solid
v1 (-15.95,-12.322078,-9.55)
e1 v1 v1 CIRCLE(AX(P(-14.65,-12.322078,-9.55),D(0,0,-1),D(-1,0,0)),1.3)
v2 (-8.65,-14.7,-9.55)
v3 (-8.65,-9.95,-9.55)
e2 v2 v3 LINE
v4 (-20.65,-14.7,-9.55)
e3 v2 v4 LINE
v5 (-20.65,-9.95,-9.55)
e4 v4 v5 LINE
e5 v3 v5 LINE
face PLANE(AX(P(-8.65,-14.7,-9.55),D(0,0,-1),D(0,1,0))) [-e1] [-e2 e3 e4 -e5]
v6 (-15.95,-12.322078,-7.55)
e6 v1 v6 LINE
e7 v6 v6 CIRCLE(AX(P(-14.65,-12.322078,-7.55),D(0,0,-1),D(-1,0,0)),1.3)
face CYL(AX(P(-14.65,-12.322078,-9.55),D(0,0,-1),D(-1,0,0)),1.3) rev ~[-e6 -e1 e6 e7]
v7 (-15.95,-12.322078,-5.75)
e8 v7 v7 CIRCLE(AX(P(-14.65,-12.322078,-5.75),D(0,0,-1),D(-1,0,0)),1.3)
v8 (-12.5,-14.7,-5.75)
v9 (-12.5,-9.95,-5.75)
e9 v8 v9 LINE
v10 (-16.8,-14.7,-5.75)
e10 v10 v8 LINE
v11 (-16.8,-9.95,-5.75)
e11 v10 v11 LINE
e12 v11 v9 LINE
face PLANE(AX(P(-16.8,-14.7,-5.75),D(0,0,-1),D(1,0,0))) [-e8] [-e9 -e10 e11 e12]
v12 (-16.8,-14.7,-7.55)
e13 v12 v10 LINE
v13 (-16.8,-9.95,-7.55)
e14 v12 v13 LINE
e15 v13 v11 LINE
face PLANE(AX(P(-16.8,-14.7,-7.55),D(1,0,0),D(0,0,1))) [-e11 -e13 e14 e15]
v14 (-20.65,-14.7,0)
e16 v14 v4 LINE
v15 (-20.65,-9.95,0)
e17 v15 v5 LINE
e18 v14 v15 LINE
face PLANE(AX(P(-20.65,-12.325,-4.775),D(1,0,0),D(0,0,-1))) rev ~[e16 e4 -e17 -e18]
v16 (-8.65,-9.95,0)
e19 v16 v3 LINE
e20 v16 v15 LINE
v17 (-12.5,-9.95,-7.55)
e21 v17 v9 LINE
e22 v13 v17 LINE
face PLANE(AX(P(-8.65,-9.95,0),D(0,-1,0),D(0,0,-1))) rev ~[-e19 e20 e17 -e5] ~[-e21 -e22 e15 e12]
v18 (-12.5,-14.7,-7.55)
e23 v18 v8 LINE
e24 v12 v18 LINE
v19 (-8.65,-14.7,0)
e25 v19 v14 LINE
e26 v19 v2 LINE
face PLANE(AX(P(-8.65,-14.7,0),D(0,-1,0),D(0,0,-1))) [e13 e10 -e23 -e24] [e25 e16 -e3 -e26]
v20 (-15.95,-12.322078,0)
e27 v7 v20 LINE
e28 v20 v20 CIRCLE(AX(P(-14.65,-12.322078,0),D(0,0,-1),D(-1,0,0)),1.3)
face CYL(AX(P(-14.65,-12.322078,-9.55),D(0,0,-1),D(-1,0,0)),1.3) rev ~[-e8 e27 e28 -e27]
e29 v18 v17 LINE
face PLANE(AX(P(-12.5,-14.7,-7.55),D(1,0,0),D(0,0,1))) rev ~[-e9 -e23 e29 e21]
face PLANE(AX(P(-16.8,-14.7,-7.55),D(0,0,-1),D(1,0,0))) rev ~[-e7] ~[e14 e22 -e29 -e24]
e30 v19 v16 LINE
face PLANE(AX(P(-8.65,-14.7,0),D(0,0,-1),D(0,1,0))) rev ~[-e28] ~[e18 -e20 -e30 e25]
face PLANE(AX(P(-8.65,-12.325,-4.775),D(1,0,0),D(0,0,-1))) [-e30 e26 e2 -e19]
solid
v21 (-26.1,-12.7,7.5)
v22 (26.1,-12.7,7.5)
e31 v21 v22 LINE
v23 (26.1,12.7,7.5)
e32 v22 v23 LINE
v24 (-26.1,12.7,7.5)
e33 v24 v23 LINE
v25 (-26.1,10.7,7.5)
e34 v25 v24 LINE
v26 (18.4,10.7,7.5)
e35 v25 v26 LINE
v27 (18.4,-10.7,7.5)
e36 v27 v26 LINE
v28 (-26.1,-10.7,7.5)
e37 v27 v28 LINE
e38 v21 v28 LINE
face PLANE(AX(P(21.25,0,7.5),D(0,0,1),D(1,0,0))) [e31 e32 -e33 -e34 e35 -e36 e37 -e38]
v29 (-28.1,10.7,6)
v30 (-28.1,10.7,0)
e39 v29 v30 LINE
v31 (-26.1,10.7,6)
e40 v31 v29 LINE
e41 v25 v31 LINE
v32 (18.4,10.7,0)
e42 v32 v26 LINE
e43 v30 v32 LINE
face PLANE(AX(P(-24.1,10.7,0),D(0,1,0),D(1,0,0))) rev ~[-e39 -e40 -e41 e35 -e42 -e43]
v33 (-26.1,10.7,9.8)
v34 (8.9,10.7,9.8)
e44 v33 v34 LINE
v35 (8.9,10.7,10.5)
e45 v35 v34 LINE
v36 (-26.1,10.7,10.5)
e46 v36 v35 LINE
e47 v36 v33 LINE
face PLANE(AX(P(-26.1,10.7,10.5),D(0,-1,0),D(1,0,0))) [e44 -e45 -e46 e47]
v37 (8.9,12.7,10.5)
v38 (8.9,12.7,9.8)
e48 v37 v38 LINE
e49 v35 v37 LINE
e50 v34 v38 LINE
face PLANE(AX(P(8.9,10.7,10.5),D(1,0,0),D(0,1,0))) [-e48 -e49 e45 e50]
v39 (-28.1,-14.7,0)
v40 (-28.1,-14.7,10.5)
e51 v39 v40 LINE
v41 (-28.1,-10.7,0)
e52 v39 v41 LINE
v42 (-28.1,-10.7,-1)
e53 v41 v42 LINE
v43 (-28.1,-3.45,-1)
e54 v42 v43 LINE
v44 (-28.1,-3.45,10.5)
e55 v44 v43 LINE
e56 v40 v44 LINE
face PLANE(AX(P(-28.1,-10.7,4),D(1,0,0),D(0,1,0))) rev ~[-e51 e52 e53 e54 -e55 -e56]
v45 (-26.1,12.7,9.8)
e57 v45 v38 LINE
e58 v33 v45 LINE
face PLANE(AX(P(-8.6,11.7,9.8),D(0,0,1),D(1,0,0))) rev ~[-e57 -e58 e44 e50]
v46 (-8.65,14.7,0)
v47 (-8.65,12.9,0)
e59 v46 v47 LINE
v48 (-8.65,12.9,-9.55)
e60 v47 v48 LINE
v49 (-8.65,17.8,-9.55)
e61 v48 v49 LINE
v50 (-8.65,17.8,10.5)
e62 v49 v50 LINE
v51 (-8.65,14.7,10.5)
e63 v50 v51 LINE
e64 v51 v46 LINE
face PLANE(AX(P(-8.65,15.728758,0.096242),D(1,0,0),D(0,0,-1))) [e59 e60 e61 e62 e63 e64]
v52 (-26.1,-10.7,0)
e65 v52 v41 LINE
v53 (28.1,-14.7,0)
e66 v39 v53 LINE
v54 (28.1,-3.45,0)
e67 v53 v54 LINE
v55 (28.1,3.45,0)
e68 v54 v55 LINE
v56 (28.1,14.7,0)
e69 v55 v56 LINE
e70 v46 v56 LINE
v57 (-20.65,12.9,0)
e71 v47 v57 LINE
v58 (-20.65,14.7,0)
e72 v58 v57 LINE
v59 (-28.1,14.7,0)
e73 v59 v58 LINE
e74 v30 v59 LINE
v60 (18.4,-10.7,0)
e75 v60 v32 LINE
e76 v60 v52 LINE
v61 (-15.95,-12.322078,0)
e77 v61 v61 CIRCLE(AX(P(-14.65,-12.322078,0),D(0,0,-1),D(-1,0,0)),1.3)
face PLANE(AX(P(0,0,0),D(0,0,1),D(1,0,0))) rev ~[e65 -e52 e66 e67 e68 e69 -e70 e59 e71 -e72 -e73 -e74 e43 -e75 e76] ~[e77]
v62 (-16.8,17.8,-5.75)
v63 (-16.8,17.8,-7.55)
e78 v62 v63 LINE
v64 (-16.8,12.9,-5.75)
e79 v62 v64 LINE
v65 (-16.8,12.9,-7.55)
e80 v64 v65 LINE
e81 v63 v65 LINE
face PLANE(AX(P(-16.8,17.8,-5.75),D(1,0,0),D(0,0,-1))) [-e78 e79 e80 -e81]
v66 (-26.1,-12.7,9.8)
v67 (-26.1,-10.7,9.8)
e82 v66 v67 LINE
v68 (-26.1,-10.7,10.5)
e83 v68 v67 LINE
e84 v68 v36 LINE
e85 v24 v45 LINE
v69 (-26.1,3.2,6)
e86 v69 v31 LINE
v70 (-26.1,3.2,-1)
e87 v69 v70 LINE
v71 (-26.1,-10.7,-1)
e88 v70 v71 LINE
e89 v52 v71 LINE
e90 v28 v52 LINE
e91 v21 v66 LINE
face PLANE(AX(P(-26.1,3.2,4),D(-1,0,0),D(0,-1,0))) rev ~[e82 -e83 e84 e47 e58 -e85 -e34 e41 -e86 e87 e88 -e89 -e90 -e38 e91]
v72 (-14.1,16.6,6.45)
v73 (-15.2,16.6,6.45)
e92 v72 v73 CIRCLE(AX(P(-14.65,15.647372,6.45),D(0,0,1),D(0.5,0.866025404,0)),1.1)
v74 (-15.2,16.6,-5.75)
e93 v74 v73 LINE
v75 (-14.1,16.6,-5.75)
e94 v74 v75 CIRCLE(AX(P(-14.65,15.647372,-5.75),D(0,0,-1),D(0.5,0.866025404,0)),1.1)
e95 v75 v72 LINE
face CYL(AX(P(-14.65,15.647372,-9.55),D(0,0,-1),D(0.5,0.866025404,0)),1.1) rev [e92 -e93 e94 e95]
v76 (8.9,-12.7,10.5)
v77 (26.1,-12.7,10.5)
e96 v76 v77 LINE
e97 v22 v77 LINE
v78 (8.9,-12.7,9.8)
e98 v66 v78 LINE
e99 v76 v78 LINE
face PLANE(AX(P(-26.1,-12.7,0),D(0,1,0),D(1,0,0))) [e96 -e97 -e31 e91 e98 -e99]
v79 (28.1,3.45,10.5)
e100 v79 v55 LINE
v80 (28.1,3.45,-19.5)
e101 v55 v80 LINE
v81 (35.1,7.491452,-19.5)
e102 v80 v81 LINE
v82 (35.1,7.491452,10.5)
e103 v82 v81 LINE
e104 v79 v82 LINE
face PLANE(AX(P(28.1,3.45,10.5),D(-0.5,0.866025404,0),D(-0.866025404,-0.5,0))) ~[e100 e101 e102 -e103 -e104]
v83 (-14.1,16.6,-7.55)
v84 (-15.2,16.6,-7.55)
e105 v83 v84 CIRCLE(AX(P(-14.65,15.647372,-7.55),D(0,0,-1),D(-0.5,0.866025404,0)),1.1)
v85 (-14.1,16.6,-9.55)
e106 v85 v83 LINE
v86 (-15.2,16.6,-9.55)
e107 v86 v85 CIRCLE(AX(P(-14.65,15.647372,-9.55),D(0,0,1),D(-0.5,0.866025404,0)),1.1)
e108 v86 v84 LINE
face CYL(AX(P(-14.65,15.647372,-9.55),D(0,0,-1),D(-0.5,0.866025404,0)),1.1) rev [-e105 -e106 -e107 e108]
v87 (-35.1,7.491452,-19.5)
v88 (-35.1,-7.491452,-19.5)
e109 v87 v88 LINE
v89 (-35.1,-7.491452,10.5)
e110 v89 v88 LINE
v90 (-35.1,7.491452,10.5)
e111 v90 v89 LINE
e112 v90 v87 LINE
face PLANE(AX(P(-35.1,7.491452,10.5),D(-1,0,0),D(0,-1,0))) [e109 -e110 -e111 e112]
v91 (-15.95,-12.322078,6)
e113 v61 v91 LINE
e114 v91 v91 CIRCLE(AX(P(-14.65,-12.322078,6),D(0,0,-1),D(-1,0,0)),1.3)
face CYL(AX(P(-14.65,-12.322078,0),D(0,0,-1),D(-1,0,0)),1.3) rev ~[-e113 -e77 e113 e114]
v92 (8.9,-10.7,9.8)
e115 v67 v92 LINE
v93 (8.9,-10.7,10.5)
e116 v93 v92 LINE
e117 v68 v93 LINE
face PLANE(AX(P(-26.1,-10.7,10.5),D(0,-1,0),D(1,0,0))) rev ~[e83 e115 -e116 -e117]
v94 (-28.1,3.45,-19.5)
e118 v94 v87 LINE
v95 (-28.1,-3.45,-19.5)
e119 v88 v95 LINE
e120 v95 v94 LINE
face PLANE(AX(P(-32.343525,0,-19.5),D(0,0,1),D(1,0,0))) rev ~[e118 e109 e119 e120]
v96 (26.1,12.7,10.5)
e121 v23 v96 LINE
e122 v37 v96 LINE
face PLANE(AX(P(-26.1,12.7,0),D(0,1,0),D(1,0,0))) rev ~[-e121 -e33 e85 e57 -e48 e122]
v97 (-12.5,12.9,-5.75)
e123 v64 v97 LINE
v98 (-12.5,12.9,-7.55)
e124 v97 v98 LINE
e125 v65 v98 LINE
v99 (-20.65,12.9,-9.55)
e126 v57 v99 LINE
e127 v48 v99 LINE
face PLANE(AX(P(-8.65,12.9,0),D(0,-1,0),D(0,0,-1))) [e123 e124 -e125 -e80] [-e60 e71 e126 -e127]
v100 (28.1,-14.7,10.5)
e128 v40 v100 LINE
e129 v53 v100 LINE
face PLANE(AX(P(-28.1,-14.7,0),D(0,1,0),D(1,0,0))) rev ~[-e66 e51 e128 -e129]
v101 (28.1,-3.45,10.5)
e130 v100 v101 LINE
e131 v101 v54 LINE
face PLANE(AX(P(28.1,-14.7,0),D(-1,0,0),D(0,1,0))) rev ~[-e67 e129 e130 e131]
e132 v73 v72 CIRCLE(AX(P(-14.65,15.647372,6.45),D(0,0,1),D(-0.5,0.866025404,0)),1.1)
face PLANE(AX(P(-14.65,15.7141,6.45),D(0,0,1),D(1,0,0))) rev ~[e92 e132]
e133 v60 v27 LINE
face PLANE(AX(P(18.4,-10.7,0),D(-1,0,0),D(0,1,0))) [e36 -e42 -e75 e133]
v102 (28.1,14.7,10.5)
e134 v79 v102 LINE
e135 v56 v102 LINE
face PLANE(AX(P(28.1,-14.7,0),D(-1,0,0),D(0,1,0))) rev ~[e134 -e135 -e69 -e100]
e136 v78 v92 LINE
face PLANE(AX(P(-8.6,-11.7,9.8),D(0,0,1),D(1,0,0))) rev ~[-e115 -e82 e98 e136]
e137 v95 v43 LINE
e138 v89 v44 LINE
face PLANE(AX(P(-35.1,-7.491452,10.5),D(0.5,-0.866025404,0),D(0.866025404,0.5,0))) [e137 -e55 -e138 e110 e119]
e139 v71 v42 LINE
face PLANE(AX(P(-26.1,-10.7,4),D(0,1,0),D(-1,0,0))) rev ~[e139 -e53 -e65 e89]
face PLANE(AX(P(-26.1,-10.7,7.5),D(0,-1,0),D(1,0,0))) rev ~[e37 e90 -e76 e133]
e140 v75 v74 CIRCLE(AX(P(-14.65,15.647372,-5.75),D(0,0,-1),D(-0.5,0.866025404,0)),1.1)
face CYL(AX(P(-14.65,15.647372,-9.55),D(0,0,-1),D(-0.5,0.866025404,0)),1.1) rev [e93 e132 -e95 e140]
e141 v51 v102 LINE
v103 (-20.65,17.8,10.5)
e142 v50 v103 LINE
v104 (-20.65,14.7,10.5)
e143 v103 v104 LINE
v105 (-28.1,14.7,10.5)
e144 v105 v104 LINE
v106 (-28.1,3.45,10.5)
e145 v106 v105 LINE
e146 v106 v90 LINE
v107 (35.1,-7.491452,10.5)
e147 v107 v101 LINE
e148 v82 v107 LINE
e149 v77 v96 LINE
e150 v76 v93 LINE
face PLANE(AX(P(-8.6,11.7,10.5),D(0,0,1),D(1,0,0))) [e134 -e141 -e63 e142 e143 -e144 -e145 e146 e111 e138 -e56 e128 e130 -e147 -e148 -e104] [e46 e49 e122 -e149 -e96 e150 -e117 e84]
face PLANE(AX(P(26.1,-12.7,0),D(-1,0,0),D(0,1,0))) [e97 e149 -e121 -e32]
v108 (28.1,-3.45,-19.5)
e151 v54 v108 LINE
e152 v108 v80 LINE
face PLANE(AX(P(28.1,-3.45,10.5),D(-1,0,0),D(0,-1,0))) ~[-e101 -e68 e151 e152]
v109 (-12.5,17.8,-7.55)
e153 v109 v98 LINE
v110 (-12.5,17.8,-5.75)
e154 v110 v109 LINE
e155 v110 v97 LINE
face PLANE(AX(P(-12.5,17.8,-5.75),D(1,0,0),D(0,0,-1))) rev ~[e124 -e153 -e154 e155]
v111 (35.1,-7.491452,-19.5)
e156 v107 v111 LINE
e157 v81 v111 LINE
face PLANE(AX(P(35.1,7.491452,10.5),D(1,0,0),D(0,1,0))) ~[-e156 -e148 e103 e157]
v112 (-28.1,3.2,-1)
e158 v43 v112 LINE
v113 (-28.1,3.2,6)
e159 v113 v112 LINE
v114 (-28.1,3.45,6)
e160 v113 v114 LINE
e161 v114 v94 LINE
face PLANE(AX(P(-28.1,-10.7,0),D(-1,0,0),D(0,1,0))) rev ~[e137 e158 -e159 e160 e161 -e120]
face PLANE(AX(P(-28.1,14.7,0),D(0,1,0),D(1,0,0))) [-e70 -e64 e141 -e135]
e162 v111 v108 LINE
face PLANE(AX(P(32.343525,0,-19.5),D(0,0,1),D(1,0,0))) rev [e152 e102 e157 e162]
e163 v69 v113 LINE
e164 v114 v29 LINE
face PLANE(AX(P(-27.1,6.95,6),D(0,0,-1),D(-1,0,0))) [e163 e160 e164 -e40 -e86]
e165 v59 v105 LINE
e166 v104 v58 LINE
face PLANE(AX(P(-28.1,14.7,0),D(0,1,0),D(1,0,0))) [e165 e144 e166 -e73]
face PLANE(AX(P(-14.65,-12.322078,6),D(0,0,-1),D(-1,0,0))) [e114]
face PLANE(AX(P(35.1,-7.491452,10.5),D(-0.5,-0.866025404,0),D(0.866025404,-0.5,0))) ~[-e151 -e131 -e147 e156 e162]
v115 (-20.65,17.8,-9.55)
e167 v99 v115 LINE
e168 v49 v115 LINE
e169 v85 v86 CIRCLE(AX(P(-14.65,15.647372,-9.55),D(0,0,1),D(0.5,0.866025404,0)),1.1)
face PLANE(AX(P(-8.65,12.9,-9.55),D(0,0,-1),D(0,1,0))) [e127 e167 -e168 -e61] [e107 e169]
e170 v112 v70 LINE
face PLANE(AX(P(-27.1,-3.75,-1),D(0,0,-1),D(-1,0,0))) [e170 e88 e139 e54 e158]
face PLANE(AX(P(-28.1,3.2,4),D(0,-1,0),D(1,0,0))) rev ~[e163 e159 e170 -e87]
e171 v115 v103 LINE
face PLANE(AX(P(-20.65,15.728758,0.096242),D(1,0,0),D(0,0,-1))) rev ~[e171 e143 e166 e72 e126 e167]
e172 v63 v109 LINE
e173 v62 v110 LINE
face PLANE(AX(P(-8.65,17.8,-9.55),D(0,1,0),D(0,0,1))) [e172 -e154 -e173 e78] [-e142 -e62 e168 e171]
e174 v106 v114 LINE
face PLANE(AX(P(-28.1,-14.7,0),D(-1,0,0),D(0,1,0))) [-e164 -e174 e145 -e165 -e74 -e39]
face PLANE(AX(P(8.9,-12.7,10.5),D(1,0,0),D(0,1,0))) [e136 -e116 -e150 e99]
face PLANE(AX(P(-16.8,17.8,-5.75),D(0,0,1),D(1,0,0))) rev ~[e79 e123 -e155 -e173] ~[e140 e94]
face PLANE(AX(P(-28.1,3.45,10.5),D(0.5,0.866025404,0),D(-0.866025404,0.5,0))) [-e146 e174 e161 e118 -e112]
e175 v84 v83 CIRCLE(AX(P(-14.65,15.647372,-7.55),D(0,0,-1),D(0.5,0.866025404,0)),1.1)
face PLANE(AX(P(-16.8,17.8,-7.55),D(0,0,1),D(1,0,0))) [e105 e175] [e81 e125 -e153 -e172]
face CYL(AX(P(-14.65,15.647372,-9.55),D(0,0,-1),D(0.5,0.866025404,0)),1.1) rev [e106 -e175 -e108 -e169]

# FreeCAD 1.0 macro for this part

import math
import FreeCAD as App
import Part
import Sketcher
Q = App.Units.Quantity

doc = App.newDocument("Part")
body = doc.addObject("PartDesign::Body", "Body")

sketch1 = body.newObject("Sketcher::SketchObject", "Sketch")
sketch1.AttachmentSupport = (doc.getObject("XY_Plane"), [""])
sketch1.MapMode = "FlatFace"
sketch1.addGeometry([
    Part.LineSegment(App.Vector(-26, 13, 0), App.Vector(-26, -13, 0)),
    Part.LineSegment(App.Vector(-26, -13, 0), App.Vector(26, -13, 0)),
    Part.LineSegment(App.Vector(26, -13, 0), App.Vector(26, 13, 0)),
    Part.LineSegment(App.Vector(26, 13, 0), App.Vector(-26, 13, 0)),
    Part.LineSegment(App.Vector(18, -11, 0), App.Vector(-24, -11, 0)),
    Part.LineSegment(App.Vector(-24, -11, 0), App.Vector(-24, 11, 0)),
    Part.LineSegment(App.Vector(-24, 11, 0), App.Vector(18, 11, 0)),
    Part.LineSegment(App.Vector(18, 11, 0), App.Vector(18, -11, 0)),
], False)
sketch1.addConstraint([
    Sketcher.Constraint("Coincident", 0, 2, 1, 1),
    Sketcher.Constraint("Coincident", 1, 2, 2, 1),
    Sketcher.Constraint("Coincident", 2, 2, 3, 1),
    Sketcher.Constraint("Coincident", 3, 2, 0, 1),
    Sketcher.Constraint("Coincident", 4, 2, 5, 1),
    Sketcher.Constraint("Coincident", 5, 2, 6, 1),
    Sketcher.Constraint("Coincident", 6, 2, 7, 1),
    Sketcher.Constraint("Coincident", 7, 2, 4, 1),
    Sketcher.Constraint("Vertical", 0),
    Sketcher.Constraint("Horizontal", 1),
    Sketcher.Constraint("Vertical", 2),
    Sketcher.Constraint("Horizontal", 3),
    Sketcher.Constraint("Horizontal", 4),
    Sketcher.Constraint("Vertical", 5),
    Sketcher.Constraint("Horizontal", 6),
    Sketcher.Constraint("Vertical", 7),
    Sketcher.Constraint("Symmetric", 0, 2, 2, 2, -1, 1),
    Sketcher.Constraint("DistanceX", 1, 1, 1, 2, 52.2),
    Sketcher.Constraint("DistanceX", 4, 2, 4, 1, 42.5),
    Sketcher.Constraint("DistanceY", 0, 2, 0, 1, 25.4),
    Sketcher.Constraint("DistanceY", 5, 1, 5, 2, 21.4),
    Sketcher.Constraint("DistanceX", 0, 2, 4, 2, 2.0),
    Sketcher.Constraint("DistanceY", 0, 2, 4, 2, 2.0),
])
pad1 = body.newObject("PartDesign::Pad", "Pad")
pad1.Profile = sketch1
pad1.Length = 7.5

sketch2 = body.newObject("Sketcher::SketchObject", "Sketch001")
sketch2.AttachmentSupport = (doc.getObject("XY_Plane"), [""])
sketch2.MapMode = "FlatFace"
sketch2.AttachmentOffset = App.Placement(App.Vector(0, 0, 7.5), App.Rotation())
sketch2.addGeometry([
    Part.LineSegment(App.Vector(-28, 15, 0), App.Vector(-28, -15, 0)),
    Part.LineSegment(App.Vector(-28, -15, 0), App.Vector(28, -15, 0)),
    Part.LineSegment(App.Vector(28, -15, 0), App.Vector(28, 15, 0)),
    Part.LineSegment(App.Vector(28, 15, 0), App.Vector(-28, 15, 0)),
    Part.LineSegment(App.Vector(26, -13, 0), App.Vector(-26, -13, 0)),
    Part.LineSegment(App.Vector(-26, -13, 0), App.Vector(-26, 13, 0)),
    Part.LineSegment(App.Vector(-26, 13, 0), App.Vector(26, 13, 0)),
    Part.LineSegment(App.Vector(26, 13, 0), App.Vector(26, -13, 0)),
], False)
sketch2.addConstraint([
    Sketcher.Constraint("Coincident", 0, 2, 1, 1),
    Sketcher.Constraint("Coincident", 1, 2, 2, 1),
    Sketcher.Constraint("Coincident", 2, 2, 3, 1),
    Sketcher.Constraint("Coincident", 3, 2, 0, 1),
    Sketcher.Constraint("Coincident", 4, 2, 5, 1),
    Sketcher.Constraint("Coincident", 5, 2, 6, 1),
    Sketcher.Constraint("Coincident", 6, 2, 7, 1),
    Sketcher.Constraint("Coincident", 7, 2, 4, 1),
    Sketcher.Constraint("Vertical", 0),
    Sketcher.Constraint("Horizontal", 1),
    Sketcher.Constraint("Vertical", 2),
    Sketcher.Constraint("Horizontal", 3),
    Sketcher.Constraint("Horizontal", 4),
    Sketcher.Constraint("Vertical", 5),
    Sketcher.Constraint("Horizontal", 6),
    Sketcher.Constraint("Vertical", 7),
    Sketcher.Constraint("Symmetric", 0, 2, 2, 2, -1, 1),
    Sketcher.Constraint("Symmetric", 4, 2, 6, 2, -1, 1),
    Sketcher.Constraint("DistanceX", 1, 1, 1, 2, 56.2),
    Sketcher.Constraint("DistanceX", 4, 2, 4, 1, 52.2),
    Sketcher.Constraint("DistanceY", 0, 2, 0, 1, 29.4),
    Sketcher.Constraint("DistanceY", 5, 1, 5, 2, 25.4),
])
pad2 = body.newObject("PartDesign::Pad", "Pad001")
pad2.Profile = sketch2
pad2.Type = "TwoLengths"
pad2.Length = 3
pad2.Length2 = 7.5

sketch3 = body.newObject("Sketcher::SketchObject", "Sketch002")
sketch3.AttachmentSupport = (doc.getObject("XY_Plane"), [""])
sketch3.MapMode = "FlatFace"
sketch3.AttachmentOffset = App.Placement(App.Vector(0, 0, 10.5), App.Rotation())
sketch3.addGeometry([
    Part.LineSegment(App.Vector(-28, 3, 0), App.Vector(-35, 7, 0)),
    Part.LineSegment(App.Vector(-35, 7, 0), App.Vector(-35, -7, 0)),
    Part.LineSegment(App.Vector(-35, -7, 0), App.Vector(-28, -3, 0)),
    Part.LineSegment(App.Vector(-28, -3, 0), App.Vector(-28, 3, 0)),
], False)
sketch3.addConstraint([
    Sketcher.Constraint("Coincident", 0, 2, 1, 1),
    Sketcher.Constraint("Coincident", 1, 2, 2, 1),
    Sketcher.Constraint("Coincident", 2, 2, 3, 1),
    Sketcher.Constraint("Coincident", 3, 2, 0, 1),
    Sketcher.Constraint("Vertical", 1),
    Sketcher.Constraint("Vertical", 3),
    Sketcher.Constraint("Equal", 0, 2),
    Sketcher.Constraint("Angle", 0, Q("150 deg")),
    Sketcher.Constraint("DistanceY", 3, 1, 3, 2, 6.9),
    Sketcher.Constraint("DistanceX", 1, 2, 2, 2, 7.0),
    Sketcher.Constraint("DistanceX", 0, 2, -1, 1, 35.1),
    Sketcher.Constraint("DistanceY", 2, 2, -1, 1, 3.45),
])
pad3 = body.newObject("PartDesign::Pad", "Pad002")
pad3.Profile = sketch3
pad3.Length = 30
pad3.Reversed = True
doc.recompute()

mirrored = body.newObject("PartDesign::Mirrored", "Mirrored")
mirrored.Originals = [pad3]
mirrored.MirrorPlane = (doc.getObject("YZ_Plane"), [""])
body.Tip = mirrored

sketch4 = body.newObject("Sketcher::SketchObject", "Sketch003")
sketch4.AttachmentSupport = (doc.getObject("YZ_Plane"), [""])
sketch4.MapMode = "FlatFace"
sketch4.AttachmentOffset = App.Placement(App.Vector(0, 0, -8.65), App.Rotation())
sketch4.addGeometry([
    Part.LineSegment(App.Vector(12.9, -9.6, 0), App.Vector(17.8, -9.6, 0)),
    Part.LineSegment(App.Vector(17.8, -9.6, 0), App.Vector(17.8, 10.5, 0)),
    Part.LineSegment(App.Vector(17.8, 10.5, 0), App.Vector(14.7, 10.5, 0)),
    Part.LineSegment(App.Vector(14.7, 10.5, 0), App.Vector(14.7, 0, 0)),
    Part.LineSegment(App.Vector(14.7, 0, 0), App.Vector(12.9, 0, 0)),
    Part.LineSegment(App.Vector(12.9, 0, 0), App.Vector(12.9, -9.6, 0)),
], False)
sketch4.addConstraint([
    Sketcher.Constraint("Coincident", 0, 2, 1, 1),
    Sketcher.Constraint("Coincident", 1, 2, 2, 1),
    Sketcher.Constraint("Coincident", 2, 2, 3, 1),
    Sketcher.Constraint("Coincident", 3, 2, 4, 1),
    Sketcher.Constraint("Coincident", 4, 2, 5, 1),
    Sketcher.Constraint("Coincident", 5, 2, 0, 1),
    Sketcher.Constraint("Horizontal", 0),
    Sketcher.Constraint("Vertical", 1),
    Sketcher.Constraint("Horizontal", 2),
    Sketcher.Constraint("Vertical", 3),
    Sketcher.Constraint("Horizontal", 4),
    Sketcher.Constraint("Vertical", 5),
    Sketcher.Constraint("PointOnObject", 3, 2, -1),
    Sketcher.Constraint("DistanceX", 0, 1, 0, 2, 4.9),
    Sketcher.Constraint("DistanceX", 2, 2, 2, 1, 3.1),
    Sketcher.Constraint("DistanceY", 3, 2, 3, 1, 10.5),
    Sketcher.Constraint("DistanceY", 1, 1, 1, 2, 20.05),
    Sketcher.Constraint("DistanceX", -1, 1, 0, 2, 17.8),
])
pad4 = body.newObject("PartDesign::Pad", "Pad003")
pad4.Profile = sketch4
pad4.Length = 12
pad4.Reversed = True

sketch5 = body.newObject("Sketcher::SketchObject", "Sketch004")
sketch5.AttachmentSupport = (doc.getObject("XY_Plane"), [""])
sketch5.MapMode = "FlatFace"
sketch5.AttachmentOffset = App.Placement(App.Vector(0, 0, -9.55), App.Rotation())
sketch5.addGeometry([
    Part.ArcOfCircle(Part.Circle(App.Vector(-14.7, 15.6, 0), App.Vector(0, 0, 1), 1.1), math.radians(60), math.radians(120)),
    Part.ArcOfCircle(Part.Circle(App.Vector(-14.7, 15.6, 0), App.Vector(0, 0, 1), 1.1), math.radians(120), math.radians(420)),
], False)
sketch5.addConstraint([
    Sketcher.Constraint("Tangent", 0, 1, 1, 2),
    Sketcher.Constraint("Coincident", 1, 1, 0, 2),
    Sketcher.Constraint("Horizontal", 0, 1, 1, 1),
    Sketcher.Constraint("Radius", 0, 1.1),
    Sketcher.Constraint("DistanceX", 0, 1, -1, 1, 14.1),
    Sketcher.Constraint("DistanceY", -1, 1, 0, 1, 16.6),
    Sketcher.Constraint("DistanceX", 1, 1, -1, 1, 15.2),
])
pocket1 = body.newObject("PartDesign::Pocket", "Pocket")
pocket1.Profile = sketch5
pocket1.Length = 16
pocket1.Reversed = True

sketch6 = body.newObject("Sketcher::SketchObject", "Sketch005")
sketch6.AttachmentSupport = (doc.getObject("XZ_Plane"), [""])
sketch6.MapMode = "FlatFace"
sketch6.AttachmentOffset = App.Placement(App.Vector(0, 0, -17.8), App.Rotation())
sketch6.addGeometry([
    Part.LineSegment(App.Vector(-16.8, -7.5, 0), App.Vector(-16.8, -5.8, 0)),
    Part.LineSegment(App.Vector(-16.8, -5.8, 0), App.Vector(-12.5, -5.8, 0)),
    Part.LineSegment(App.Vector(-12.5, -5.8, 0), App.Vector(-12.5, -7.5, 0)),
    Part.LineSegment(App.Vector(-12.5, -7.5, 0), App.Vector(-16.8, -7.5, 0)),
], False)
sketch6.addConstraint([
    Sketcher.Constraint("Coincident", 0, 2, 1, 1),
    Sketcher.Constraint("Coincident", 1, 2, 2, 1),
    Sketcher.Constraint("Coincident", 2, 2, 3, 1),
    Sketcher.Constraint("Coincident", 3, 2, 0, 1),
    Sketcher.Constraint("Vertical", 0),
    Sketcher.Constraint("Horizontal", 1),
    Sketcher.Constraint("Vertical", 2),
    Sketcher.Constraint("Horizontal", 3),
    Sketcher.Constraint("DistanceX", 1, 1, 1, 2, 4.3),
    Sketcher.Constraint("DistanceY", 0, 1, 0, 2, 1.8),
    Sketcher.Constraint("DistanceX", 0, 2, -1, 1, 16.8),
    Sketcher.Constraint("DistanceY", 0, 2, -1, 1, 5.75),
])
pocket2 = body.newObject("PartDesign::Pocket", "Pocket001")
pocket2.Profile = sketch6
pocket2.Type = "UpToFirst"
pocket2.Reversed = True

sketch7 = body.newObject("Sketcher::SketchObject", "Sketch006")
sketch7.AttachmentSupport = (doc.getObject("XY_Plane"), [""])
sketch7.MapMode = "FlatFace"
sketch7.addGeometry([
    Part.LineSegment(App.Vector(-24.1, 10.7, 0), App.Vector(-24.1, -10.7, 0)),
    Part.LineSegment(App.Vector(-24.1, -10.7, 0), App.Vector(-28.1, -10.7, 0)),
    Part.LineSegment(App.Vector(-28.1, -10.7, 0), App.Vector(-28.1, 10.7, 0)),
    Part.LineSegment(App.Vector(-28.1, 10.7, 0), App.Vector(-24.1, 10.7, 0)),
], False)
sketch7.addConstraint([
    Sketcher.Constraint("Coincident", 0, 2, 1, 1),
    Sketcher.Constraint("Coincident", 1, 2, 2, 1),
    Sketcher.Constraint("Coincident", 2, 2, 3, 1),
    Sketcher.Constraint("Coincident", 3, 2, 0, 1),
    Sketcher.Constraint("Vertical", 0),
    Sketcher.Constraint("Horizontal", 1),
    Sketcher.Constraint("Vertical", 2),
    Sketcher.Constraint("Horizontal", 3),
    Sketcher.Constraint("DistanceX", 1, 2, 1, 1, 4.0),
    Sketcher.Constraint("DistanceY", 0, 2, 0, 1, 21.4),
    Sketcher.Constraint("DistanceX", 0, 2, -1, 1, 24.1),
    Sketcher.Constraint("DistanceY", 0, 2, -1, 1, 10.7),
])
pocket3 = body.newObject("PartDesign::Pocket", "Pocket002")
pocket3.Profile = sketch7
pocket3.Length = 4
pocket3.Reversed = True

sketch8 = body.newObject("Sketcher::SketchObject", "Sketch007")
sketch8.AttachmentSupport = (doc.getObject("XY_Plane"), [""])
sketch8.MapMode = "FlatFace"
sketch8.AttachmentOffset = App.Placement(App.Vector(0, 0, 10.5), App.Rotation())
sketch8.addGeometry([
    Part.LineSegment(App.Vector(-26.1, 12.7, 0), App.Vector(-26.1, 10.7, 0)),
    Part.LineSegment(App.Vector(-26.1, 10.7, 0), App.Vector(8.9, 10.7, 0)),
    Part.LineSegment(App.Vector(8.9, 10.7, 0), App.Vector(8.9, 12.7, 0)),
    Part.LineSegment(App.Vector(8.9, 12.7, 0), App.Vector(-26.1, 12.7, 0)),
    Part.LineSegment(App.Vector(-26.1, -10.7, 0), App.Vector(-26.1, -12.7, 0)),
    Part.LineSegment(App.Vector(-26.1, -12.7, 0), App.Vector(8.9, -12.7, 0)),
    Part.LineSegment(App.Vector(8.9, -12.7, 0), App.Vector(8.9, -10.7, 0)),
    Part.LineSegment(App.Vector(8.9, -10.7, 0), App.Vector(-26.1, -10.7, 0)),
], False)
sketch8.addConstraint([
    Sketcher.Constraint("Coincident", 0, 2, 1, 1),
    Sketcher.Constraint("Coincident", 1, 2, 2, 1),
    Sketcher.Constraint("Coincident", 2, 2, 3, 1),
    Sketcher.Constraint("Coincident", 3, 2, 0, 1),
    Sketcher.Constraint("Coincident", 4, 2, 5, 1),
    Sketcher.Constraint("Coincident", 5, 2, 6, 1),
    Sketcher.Constraint("Coincident", 6, 2, 7, 1),
    Sketcher.Constraint("Coincident", 7, 2, 4, 1),
    Sketcher.Constraint("Vertical", 0),
    Sketcher.Constraint("Horizontal", 1),
    Sketcher.Constraint("Vertical", 2),
    Sketcher.Constraint("Horizontal", 3),
    Sketcher.Constraint("Vertical", 4),
    Sketcher.Constraint("Horizontal", 5),
    Sketcher.Constraint("Vertical", 6),
    Sketcher.Constraint("Horizontal", 7),
    Sketcher.Constraint("Symmetric", 3, 2, 4, 2, -1),
    Sketcher.Constraint("Symmetric", 1, 2, 6, 2, -1),
    Sketcher.Constraint("DistanceX", 1, 1, 1, 2, 35.0),
    Sketcher.Constraint("DistanceY", 0, 2, 0, 1, 2.0),
    Sketcher.Constraint("DistanceX", 0, 2, -1, 1, 26.1),
    Sketcher.Constraint("DistanceY", -1, 1, 0, 2, 10.7),
])
pad5 = body.newObject("PartDesign::Pad", "Pad004")
pad5.Profile = sketch8
pad5.Length = 0.7
pad5.Reversed = True

sketch9 = body.newObject("Sketcher::SketchObject", "Sketch008")
sketch9.AttachmentSupport = (doc.getObject("XY_Plane"), [""])
sketch9.MapMode = "FlatFace"
sketch9.addGeometry(Part.Circle(App.Vector(-14.7, -12.3, 0), App.Vector(0, 0, 1), 1.3), False)
sketch9.addConstraint([
    Sketcher.Constraint("Diameter", 0, 2.6),
    Sketcher.Constraint("DistanceX", 0, 3, -1, 1, 14.65),
    Sketcher.Constraint("DistanceY", 0, 3, -1, 1, 12.322078),
])
pocket4 = body.newObject("PartDesign::Pocket", "Pocket003")
pocket4.Profile = sketch9
pocket4.Length = 6
pocket4.Reversed = True

sketch10 = body.newObject("Sketcher::SketchObject", "Sketch009")
sketch10.AttachmentSupport = (doc.getObject("XY_Plane"), [""])
sketch10.MapMode = "FlatFace"
sketch10.AttachmentOffset = App.Placement(App.Vector(0, 0, 7.5), App.Rotation())
sketch10.addGeometry([
    Part.LineSegment(App.Vector(-26.1, 10.7, 0), App.Vector(-26.1, -10.7, 0)),
    Part.LineSegment(App.Vector(-26.1, -10.7, 0), App.Vector(-24.1, -10.7, 0)),
    Part.LineSegment(App.Vector(-24.1, -10.7, 0), App.Vector(-24.1, 10.7, 0)),
    Part.LineSegment(App.Vector(-24.1, 10.7, 0), App.Vector(-26.1, 10.7, 0)),
], False)
sketch10.addConstraint([
    Sketcher.Constraint("Coincident", 0, 2, 1, 1),
    Sketcher.Constraint("Coincident", 1, 2, 2, 1),
    Sketcher.Constraint("Coincident", 2, 2, 3, 1),
    Sketcher.Constraint("Coincident", 3, 2, 0, 1),
    Sketcher.Constraint("Vertical", 0),
    Sketcher.Constraint("Horizontal", 1),
    Sketcher.Constraint("Vertical", 2),
    Sketcher.Constraint("Horizontal", 3),
    Sketcher.Constraint("DistanceX", 1, 1, 1, 2, 2.0),
    Sketcher.Constraint("DistanceY", 0, 2, 0, 1, 21.4),
    Sketcher.Constraint("DistanceX", 0, 2, -1, 1, 26.1),
    Sketcher.Constraint("DistanceY", 0, 2, -1, 1, 10.7),
])
pocket5 = body.newObject("PartDesign::Pocket", "Pocket004")
pocket5.Profile = sketch10
pocket5.Length = 14

sketch11 = body.newObject("Sketcher::SketchObject", "Sketch010")
sketch11.AttachmentSupport = (doc.getObject("XY_Plane"), [""])
sketch11.MapMode = "FlatFace"
sketch11.AttachmentOffset = App.Placement(App.Vector(0, 0, 4), App.Rotation())
sketch11.addGeometry([
    Part.LineSegment(App.Vector(-26.1, 10.7, 0), App.Vector(-26.1, 3.2, 0)),
    Part.LineSegment(App.Vector(-26.1, 3.2, 0), App.Vector(-28.1, 3.2, 0)),
    Part.LineSegment(App.Vector(-28.1, 3.2, 0), App.Vector(-28.1, 10.7, 0)),
    Part.LineSegment(App.Vector(-28.1, 10.7, 0), App.Vector(-26.1, 10.7, 0)),
], False)
sketch11.addConstraint([
    Sketcher.Constraint("Coincident", 0, 2, 1, 1),
    Sketcher.Constraint("Coincident", 1, 2, 2, 1),
    Sketcher.Constraint("Coincident", 2, 2, 3, 1),
    Sketcher.Constraint("Coincident", 3, 2, 0, 1),
    Sketcher.Constraint("Vertical", 0),
    Sketcher.Constraint("Horizontal", 1),
    Sketcher.Constraint("Vertical", 2),
    Sketcher.Constraint("Horizontal", 3),
    Sketcher.Constraint("DistanceX", 1, 2, 1, 1, 2.0),
    Sketcher.Constraint("DistanceY", 0, 2, 0, 1, 7.5),
    Sketcher.Constraint("DistanceX", 0, 2, -1, 1, 26.1),
    Sketcher.Constraint("DistanceY", -1, 1, 0, 2, 3.2),
])
pocket6 = body.newObject("PartDesign::Pocket", "Pocket005")
pocket6.Profile = sketch11
pocket6.Length = 2
pocket6.Reversed = True

sketch12 = body.newObject("Sketcher::SketchObject", "Sketch011")
sketch12.AttachmentSupport = (doc.getObject("XY_Plane"), [""])
sketch12.MapMode = "FlatFace"
sketch12.AttachmentOffset = App.Placement(App.Vector(0, 0, 4), App.Rotation())
sketch12.addGeometry([
    Part.LineSegment(App.Vector(-28.1, -10.7, 0), App.Vector(-28.1, 3.2, 0)),
    Part.LineSegment(App.Vector(-28.1, 3.2, 0), App.Vector(-26.1, 3.2, 0)),
    Part.LineSegment(App.Vector(-26.1, 3.2, 0), App.Vector(-26.1, -10.7, 0)),
    Part.LineSegment(App.Vector(-26.1, -10.7, 0), App.Vector(-28.1, -10.7, 0)),
], False)
sketch12.addConstraint([
    Sketcher.Constraint("Coincident", 0, 2, 1, 1),
    Sketcher.Constraint("Coincident", 1, 2, 2, 1),
    Sketcher.Constraint("Coincident", 2, 2, 3, 1),
    Sketcher.Constraint("Coincident", 3, 2, 0, 1),
    Sketcher.Constraint("Vertical", 0),
    Sketcher.Constraint("Horizontal", 1),
    Sketcher.Constraint("Vertical", 2),
    Sketcher.Constraint("Horizontal", 3),
    Sketcher.Constraint("DistanceX", 1, 1, 1, 2, 2.0),
    Sketcher.Constraint("DistanceY", 0, 1, 0, 2, 13.9),
    Sketcher.Constraint("DistanceX", 0, 2, -1, 1, 28.1),
    Sketcher.Constraint("DistanceY", -1, 1, 0, 2, 3.2),
])
pad6 = body.newObject("PartDesign::Pad", "Pad005")
pad6.Profile = sketch12
pad6.Length = 5
pad6.Reversed = True
body2 = doc.addObject("PartDesign::Body", "Body001")

sketch13 = body2.newObject("Sketcher::SketchObject", "Sketch012")
sketch13.AttachmentSupport = (doc.getObject("YZ_Plane001"), [""])
sketch13.MapMode = "FlatFace"
sketch13.AttachmentOffset = App.Placement(App.Vector(0, 0, -8.65), App.Rotation())
sketch13.addGeometry([
    Part.LineSegment(App.Vector(-9.9, 0, 0), App.Vector(-14.7, 0, 0)),
    Part.LineSegment(App.Vector(-14.7, 0, 0), App.Vector(-14.7, -9.6, 0)),
    Part.LineSegment(App.Vector(-14.7, -9.6, 0), App.Vector(-9.9, -9.6, 0)),
    Part.LineSegment(App.Vector(-9.9, -9.6, 0), App.Vector(-9.9, 0, 0)),
], False)
sketch13.addConstraint([
    Sketcher.Constraint("Coincident", 0, 2, 1, 1),
    Sketcher.Constraint("Coincident", 1, 2, 2, 1),
    Sketcher.Constraint("Coincident", 2, 2, 3, 1),
    Sketcher.Constraint("Coincident", 3, 2, 0, 1),
    Sketcher.Constraint("Horizontal", 0),
    Sketcher.Constraint("Vertical", 1),
    Sketcher.Constraint("Horizontal", 2),
    Sketcher.Constraint("Vertical", 3),
    Sketcher.Constraint("PointOnObject", 0, 2, -1),
    Sketcher.Constraint("DistanceX", 0, 2, 0, 1, 4.75),
    Sketcher.Constraint("DistanceY", 1, 2, 1, 1, 9.55),
    Sketcher.Constraint("DistanceX", 0, 2, -1, 1, 14.7),
])
pad7 = body2.newObject("PartDesign::Pad", "Pad006")
pad7.Profile = sketch13
pad7.Length = 12
pad7.Reversed = True

sketch14 = body2.newObject("Sketcher::SketchObject", "Sketch013")
sketch14.AttachmentSupport = (doc.getObject("XY_Plane001"), [""])
sketch14.MapMode = "FlatFace"
sketch14.AttachmentOffset = App.Placement(App.Vector(0, 0, -9.55), App.Rotation())
sketch14.addGeometry(Part.Circle(App.Vector(-14.7, -12.3, 0), App.Vector(0, 0, 1), 1.3), False)
sketch14.addConstraint([
    Sketcher.Constraint("Diameter", 0, 2.6),
    Sketcher.Constraint("DistanceX", 0, 3, -1, 1, 14.65),
    Sketcher.Constraint("DistanceY", 0, 3, -1, 1, 12.322078),
])
pocket7 = body2.newObject("PartDesign::Pocket", "Pocket006")
pocket7.Profile = sketch14
pocket7.Length = 16
pocket7.Reversed = True

sketch15 = body2.newObject("Sketcher::SketchObject", "Sketch014")
sketch15.AttachmentSupport = (doc.getObject("XZ_Plane001"), [""])
sketch15.MapMode = "FlatFace"
sketch15.AttachmentOffset = App.Placement(App.Vector(0, 0, 14.7), App.Rotation())
sketch15.addGeometry([
    Part.LineSegment(App.Vector(-16.8, -5.8, 0), App.Vector(-16.8, -7.5, 0)),
    Part.LineSegment(App.Vector(-16.8, -7.5, 0), App.Vector(-12.5, -7.5, 0)),
    Part.LineSegment(App.Vector(-12.5, -7.5, 0), App.Vector(-12.5, -5.8, 0)),
    Part.LineSegment(App.Vector(-12.5, -5.8, 0), App.Vector(-16.8, -5.8, 0)),
], False)
sketch15.addConstraint([
    Sketcher.Constraint("Coincident", 0, 2, 1, 1),
    Sketcher.Constraint("Coincident", 1, 2, 2, 1),
    Sketcher.Constraint("Coincident", 2, 2, 3, 1),
    Sketcher.Constraint("Coincident", 3, 2, 0, 1),
    Sketcher.Constraint("Vertical", 0),
    Sketcher.Constraint("Horizontal", 1),
    Sketcher.Constraint("Vertical", 2),
    Sketcher.Constraint("Horizontal", 3),
    Sketcher.Constraint("DistanceX", 1, 1, 1, 2, 4.3),
    Sketcher.Constraint("DistanceY", 0, 2, 0, 1, 1.8),
    Sketcher.Constraint("DistanceX", 0, 2, -1, 1, 16.8),
    Sketcher.Constraint("DistanceY", 0, 2, -1, 1, 7.55),
])
pocket8 = body2.newObject("PartDesign::Pocket", "Pocket007")
pocket8.Profile = sketch15
pocket8.Length = 10

doc.recompute()
